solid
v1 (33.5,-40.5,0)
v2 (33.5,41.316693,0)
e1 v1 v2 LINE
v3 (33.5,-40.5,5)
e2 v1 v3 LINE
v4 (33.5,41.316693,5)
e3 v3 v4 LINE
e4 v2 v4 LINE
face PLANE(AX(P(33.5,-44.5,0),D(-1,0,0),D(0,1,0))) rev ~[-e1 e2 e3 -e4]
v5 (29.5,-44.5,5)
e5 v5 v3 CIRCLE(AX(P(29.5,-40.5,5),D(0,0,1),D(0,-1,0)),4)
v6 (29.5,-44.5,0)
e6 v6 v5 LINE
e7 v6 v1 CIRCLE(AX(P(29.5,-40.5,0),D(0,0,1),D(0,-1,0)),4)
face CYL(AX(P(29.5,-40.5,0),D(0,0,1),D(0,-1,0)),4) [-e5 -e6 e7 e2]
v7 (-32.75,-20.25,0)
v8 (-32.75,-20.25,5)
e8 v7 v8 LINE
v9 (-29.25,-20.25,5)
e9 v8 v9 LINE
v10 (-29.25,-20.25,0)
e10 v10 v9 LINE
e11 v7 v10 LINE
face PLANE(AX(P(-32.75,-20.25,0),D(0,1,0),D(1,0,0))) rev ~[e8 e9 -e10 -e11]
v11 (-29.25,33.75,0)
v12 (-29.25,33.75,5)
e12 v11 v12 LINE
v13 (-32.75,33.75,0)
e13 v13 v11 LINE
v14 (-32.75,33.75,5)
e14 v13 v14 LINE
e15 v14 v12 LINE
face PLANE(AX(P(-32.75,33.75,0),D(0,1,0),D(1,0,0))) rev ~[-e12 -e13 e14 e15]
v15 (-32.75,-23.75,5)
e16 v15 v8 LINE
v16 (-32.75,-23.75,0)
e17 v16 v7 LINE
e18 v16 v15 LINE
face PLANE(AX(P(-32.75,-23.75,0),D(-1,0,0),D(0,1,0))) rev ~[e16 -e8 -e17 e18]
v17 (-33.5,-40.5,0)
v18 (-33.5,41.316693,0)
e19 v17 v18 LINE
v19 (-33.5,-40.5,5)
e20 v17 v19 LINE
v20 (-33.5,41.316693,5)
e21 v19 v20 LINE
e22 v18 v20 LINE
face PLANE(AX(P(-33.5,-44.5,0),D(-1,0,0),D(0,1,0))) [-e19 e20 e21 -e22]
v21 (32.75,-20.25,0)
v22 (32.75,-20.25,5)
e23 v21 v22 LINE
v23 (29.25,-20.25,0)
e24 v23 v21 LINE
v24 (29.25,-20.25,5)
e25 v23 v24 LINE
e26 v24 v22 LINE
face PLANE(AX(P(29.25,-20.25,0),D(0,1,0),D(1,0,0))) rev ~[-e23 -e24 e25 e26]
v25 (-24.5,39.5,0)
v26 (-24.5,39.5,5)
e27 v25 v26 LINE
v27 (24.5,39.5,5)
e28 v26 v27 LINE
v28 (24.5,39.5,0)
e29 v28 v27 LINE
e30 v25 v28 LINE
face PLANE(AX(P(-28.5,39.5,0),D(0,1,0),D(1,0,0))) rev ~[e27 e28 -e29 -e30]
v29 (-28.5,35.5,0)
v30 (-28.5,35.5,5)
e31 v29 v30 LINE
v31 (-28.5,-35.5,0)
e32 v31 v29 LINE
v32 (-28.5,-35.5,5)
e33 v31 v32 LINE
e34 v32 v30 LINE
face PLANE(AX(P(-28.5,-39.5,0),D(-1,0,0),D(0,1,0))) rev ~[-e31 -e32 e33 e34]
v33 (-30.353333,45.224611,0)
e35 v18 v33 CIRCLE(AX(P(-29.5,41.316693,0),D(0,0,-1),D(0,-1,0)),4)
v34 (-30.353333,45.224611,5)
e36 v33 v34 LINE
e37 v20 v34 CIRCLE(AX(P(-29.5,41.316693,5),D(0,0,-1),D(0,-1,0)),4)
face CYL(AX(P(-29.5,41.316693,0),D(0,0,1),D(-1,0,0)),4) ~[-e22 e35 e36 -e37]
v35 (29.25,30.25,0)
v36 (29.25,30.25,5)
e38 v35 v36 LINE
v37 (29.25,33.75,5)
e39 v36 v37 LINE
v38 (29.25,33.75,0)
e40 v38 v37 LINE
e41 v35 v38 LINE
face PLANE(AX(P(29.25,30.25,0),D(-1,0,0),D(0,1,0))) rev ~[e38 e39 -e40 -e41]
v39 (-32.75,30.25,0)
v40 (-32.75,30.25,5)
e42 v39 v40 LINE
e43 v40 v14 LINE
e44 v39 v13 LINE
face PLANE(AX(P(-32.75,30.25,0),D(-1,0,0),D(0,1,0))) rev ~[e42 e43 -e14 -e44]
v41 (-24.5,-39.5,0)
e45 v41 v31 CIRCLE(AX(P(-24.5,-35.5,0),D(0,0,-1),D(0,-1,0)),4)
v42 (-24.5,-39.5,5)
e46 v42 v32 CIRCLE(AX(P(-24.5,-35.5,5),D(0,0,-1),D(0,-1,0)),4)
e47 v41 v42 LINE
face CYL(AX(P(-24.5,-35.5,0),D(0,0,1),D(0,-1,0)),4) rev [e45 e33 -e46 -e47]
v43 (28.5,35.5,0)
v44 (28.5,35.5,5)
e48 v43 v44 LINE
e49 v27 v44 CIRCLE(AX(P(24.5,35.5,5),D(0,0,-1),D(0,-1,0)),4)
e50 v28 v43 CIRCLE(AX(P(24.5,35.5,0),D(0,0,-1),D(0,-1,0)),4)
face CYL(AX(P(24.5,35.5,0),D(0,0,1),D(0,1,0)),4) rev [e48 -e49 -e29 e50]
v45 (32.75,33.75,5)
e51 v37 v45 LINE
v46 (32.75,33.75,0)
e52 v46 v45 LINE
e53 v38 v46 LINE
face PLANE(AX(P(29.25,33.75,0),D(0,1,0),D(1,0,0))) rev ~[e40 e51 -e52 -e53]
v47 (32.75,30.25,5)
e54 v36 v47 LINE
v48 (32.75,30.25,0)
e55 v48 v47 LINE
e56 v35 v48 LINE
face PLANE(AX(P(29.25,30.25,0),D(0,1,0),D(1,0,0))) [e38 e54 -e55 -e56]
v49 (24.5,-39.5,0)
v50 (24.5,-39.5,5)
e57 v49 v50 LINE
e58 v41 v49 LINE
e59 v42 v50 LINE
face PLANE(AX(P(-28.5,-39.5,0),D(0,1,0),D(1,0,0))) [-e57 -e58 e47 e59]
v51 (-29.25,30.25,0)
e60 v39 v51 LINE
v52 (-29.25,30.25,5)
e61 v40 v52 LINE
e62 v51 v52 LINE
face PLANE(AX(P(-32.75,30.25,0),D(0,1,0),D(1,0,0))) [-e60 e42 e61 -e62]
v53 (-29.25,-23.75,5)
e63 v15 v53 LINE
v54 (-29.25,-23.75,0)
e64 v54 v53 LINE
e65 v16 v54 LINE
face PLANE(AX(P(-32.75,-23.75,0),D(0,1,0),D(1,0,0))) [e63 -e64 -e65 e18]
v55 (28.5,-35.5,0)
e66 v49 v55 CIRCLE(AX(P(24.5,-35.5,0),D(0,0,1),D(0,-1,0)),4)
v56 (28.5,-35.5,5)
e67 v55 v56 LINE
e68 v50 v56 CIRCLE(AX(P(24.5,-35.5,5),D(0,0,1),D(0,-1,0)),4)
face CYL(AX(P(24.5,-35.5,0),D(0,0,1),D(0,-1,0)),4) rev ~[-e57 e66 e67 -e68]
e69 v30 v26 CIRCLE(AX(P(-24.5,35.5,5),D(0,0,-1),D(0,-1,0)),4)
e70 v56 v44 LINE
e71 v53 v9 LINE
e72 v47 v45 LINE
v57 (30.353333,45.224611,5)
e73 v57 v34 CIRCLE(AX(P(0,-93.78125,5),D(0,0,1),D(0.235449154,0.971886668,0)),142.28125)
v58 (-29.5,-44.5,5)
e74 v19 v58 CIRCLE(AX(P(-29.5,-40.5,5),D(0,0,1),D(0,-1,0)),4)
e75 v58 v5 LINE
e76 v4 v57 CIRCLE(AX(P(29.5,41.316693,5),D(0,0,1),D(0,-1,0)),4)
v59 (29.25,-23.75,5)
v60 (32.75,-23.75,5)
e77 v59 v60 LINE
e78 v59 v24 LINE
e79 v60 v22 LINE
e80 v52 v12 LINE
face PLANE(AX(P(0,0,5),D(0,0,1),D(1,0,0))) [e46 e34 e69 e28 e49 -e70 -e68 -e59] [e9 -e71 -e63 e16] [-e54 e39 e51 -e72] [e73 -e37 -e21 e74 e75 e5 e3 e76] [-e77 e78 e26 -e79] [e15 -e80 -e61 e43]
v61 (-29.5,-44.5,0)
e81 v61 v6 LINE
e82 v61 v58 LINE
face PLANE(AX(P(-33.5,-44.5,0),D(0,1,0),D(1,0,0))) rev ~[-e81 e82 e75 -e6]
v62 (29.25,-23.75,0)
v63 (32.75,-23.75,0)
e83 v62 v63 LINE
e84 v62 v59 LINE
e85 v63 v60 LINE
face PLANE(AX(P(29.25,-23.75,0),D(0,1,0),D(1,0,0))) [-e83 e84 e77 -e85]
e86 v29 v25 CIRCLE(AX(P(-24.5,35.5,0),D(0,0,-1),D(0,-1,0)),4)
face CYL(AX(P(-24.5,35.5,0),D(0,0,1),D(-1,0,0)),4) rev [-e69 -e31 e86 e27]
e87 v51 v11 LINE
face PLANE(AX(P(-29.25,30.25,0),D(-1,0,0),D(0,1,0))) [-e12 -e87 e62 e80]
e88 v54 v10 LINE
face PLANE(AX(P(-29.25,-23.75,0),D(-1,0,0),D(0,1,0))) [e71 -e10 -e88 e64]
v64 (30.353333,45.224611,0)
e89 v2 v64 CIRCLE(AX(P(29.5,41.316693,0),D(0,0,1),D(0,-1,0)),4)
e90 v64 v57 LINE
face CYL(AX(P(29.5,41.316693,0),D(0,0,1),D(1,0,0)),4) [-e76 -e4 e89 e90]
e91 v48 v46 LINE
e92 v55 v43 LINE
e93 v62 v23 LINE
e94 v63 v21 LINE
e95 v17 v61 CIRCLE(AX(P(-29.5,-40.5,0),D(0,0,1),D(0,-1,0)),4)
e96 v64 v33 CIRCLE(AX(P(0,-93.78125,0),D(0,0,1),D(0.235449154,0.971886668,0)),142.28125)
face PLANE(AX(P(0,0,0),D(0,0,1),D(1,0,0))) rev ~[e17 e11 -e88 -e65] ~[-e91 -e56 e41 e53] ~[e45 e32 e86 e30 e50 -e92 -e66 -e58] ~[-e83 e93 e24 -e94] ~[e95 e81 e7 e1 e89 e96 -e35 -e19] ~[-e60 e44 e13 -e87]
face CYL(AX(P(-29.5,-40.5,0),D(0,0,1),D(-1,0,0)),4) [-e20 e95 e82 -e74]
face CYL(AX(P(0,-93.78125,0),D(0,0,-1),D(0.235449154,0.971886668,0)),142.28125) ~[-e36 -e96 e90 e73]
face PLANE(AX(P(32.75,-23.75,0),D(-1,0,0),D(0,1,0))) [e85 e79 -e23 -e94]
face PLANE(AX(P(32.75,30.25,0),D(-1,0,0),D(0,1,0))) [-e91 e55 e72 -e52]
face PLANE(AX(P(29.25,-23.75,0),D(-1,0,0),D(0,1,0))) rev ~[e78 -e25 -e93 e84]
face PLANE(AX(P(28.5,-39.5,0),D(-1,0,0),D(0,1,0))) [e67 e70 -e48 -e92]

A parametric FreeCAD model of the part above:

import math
import FreeCAD as App
import Part
import Sketcher

V = App.Vector


def edges_at(feature, points):
    """Names of the edges that pass closest to the given points."""
    edges = feature.Shape.Edges
    near = lambda p: min(range(len(edges)), key=lambda i: edges[i].distToShape(Part.Vertex(*p))[0])
    return sorted({f"Edge{near(p) + 1}" for p in points})


def add_polygon(sketch, points):
    """Adds a closed chain of lines whose ends are joined by coincident constraints."""
    first, n = sketch.GeometryCount, len(points)
    for a, b in zip(points, points[1:] + points[:1]):
        sketch.addGeometry(Part.LineSegment(App.Vector(*a, 0), App.Vector(*b, 0)), False)
    for i in range(n):
        sketch.addConstraint(Sketcher.Constraint("Coincident", first + i, 2, first + (i + 1) % n, 1))

doc = App.newDocument("Part")
body = doc.addObject("PartDesign::Body", "Body")

# Sketch on XY plane
sketch1 = body.newObject("Sketcher::SketchObject", "Sketch")
sketch1.AttachmentSupport = (doc.getObject("XY_Plane"), [""])
sketch1.MapMode = "FlatFace"
sketch1.addGeometry(Part.LineSegment(V(-33.5, 44.5, 0), V(-33.5, -44.5, 0)), False)  # 0
sketch1.addGeometry(Part.LineSegment(V(-33.5, -44.5, 0), V(33.5, -44.5, 0)), False)  # 1
sketch1.addGeometry(Part.LineSegment(V(33.5, -44.5, 0), V(33.5, 44.5, 0)), False)  # 2
sketch1.addGeometry(Part.ArcOfCircle(Part.Circle(V(0, -93.8, 0), V(0, 0, 1), 142.3), math.radians(76), math.radians(104)), False)  # 3
add_polygon(sketch1, [(-29.2, -23.8), (-32.8, -23.8), (-32.8, -20.2), (-29.2, -20.2)])  # lines 4-7
add_polygon(sketch1, [(32.8, -23.8), (29.2, -23.8), (29.2, -20.2), (32.8, -20.2)])  # lines 8-11
add_polygon(sketch1, [(-29.2, 30.2), (-32.8, 30.2), (-32.8, 33.8), (-29.2, 33.8)])  # lines 12-15
add_polygon(sketch1, [(28.5, -39.5), (-28.5, -39.5), (-28.5, 39.5), (28.5, 39.5)])  # lines 16-19
add_polygon(sketch1, [(32.8, 30.2), (29.2, 30.2), (29.2, 33.8), (32.8, 33.8)])  # lines 20-23
sketch1.addConstraint(Sketcher.Constraint("Coincident", 0, 2, 1, 1))
sketch1.addConstraint(Sketcher.Constraint("Coincident", 1, 2, 2, 1))
sketch1.addConstraint(Sketcher.Constraint("Coincident", 2, 2, 3, 1))
sketch1.addConstraint(Sketcher.Constraint("Coincident", 3, 2, 0, 1))
sketch1.addConstraint(Sketcher.Constraint("Vertical", 0))
sketch1.addConstraint(Sketcher.Constraint("Horizontal", 1))
sketch1.addConstraint(Sketcher.Constraint("Vertical", 2))
sketch1.addConstraint(Sketcher.Constraint("Horizontal", 4))
sketch1.addConstraint(Sketcher.Constraint("Vertical", 5))
sketch1.addConstraint(Sketcher.Constraint("Horizontal", 6))
sketch1.addConstraint(Sketcher.Constraint("Vertical", 7))
sketch1.addConstraint(Sketcher.Constraint("Horizontal", 8))
sketch1.addConstraint(Sketcher.Constraint("Vertical", 9))
sketch1.addConstraint(Sketcher.Constraint("Horizontal", 10))
sketch1.addConstraint(Sketcher.Constraint("Vertical", 11))
sketch1.addConstraint(Sketcher.Constraint("Horizontal", 12))
sketch1.addConstraint(Sketcher.Constraint("Vertical", 13))
sketch1.addConstraint(Sketcher.Constraint("Horizontal", 14))
sketch1.addConstraint(Sketcher.Constraint("Vertical", 15))
sketch1.addConstraint(Sketcher.Constraint("Horizontal", 16))
sketch1.addConstraint(Sketcher.Constraint("Vertical", 17))
sketch1.addConstraint(Sketcher.Constraint("Horizontal", 18))
sketch1.addConstraint(Sketcher.Constraint("Vertical", 19))
sketch1.addConstraint(Sketcher.Constraint("Horizontal", 20))
sketch1.addConstraint(Sketcher.Constraint("Vertical", 21))
sketch1.addConstraint(Sketcher.Constraint("Horizontal", 22))
sketch1.addConstraint(Sketcher.Constraint("Vertical", 23))
sketch1.addConstraint(Sketcher.Constraint("Symmetric", 0, 2, 2, 2, -1, 1))
sketch1.addConstraint(Sketcher.Constraint("Symmetric", 16, 2, 18, 2, -1, 1))
sketch1.addConstraint(Sketcher.Constraint("Symmetric", 7, 2, 8, 2, -2))
sketch1.addConstraint(Sketcher.Constraint("Symmetric", 5, 2, 10, 2, -2))
sketch1.addConstraint(Sketcher.Constraint("Symmetric", 15, 2, 20, 2, -2))
sketch1.addConstraint(Sketcher.Constraint("Symmetric", 13, 2, 22, 2, -2))
sketch1.addConstraint(Sketcher.Constraint("PointOnObject", 3, 3, -2))
sketch1.addConstraint(Sketcher.Constraint("Vertical", 5, 2, 12, 2))
sketch1.addConstraint(Sketcher.Constraint("Vertical", 7, 2, 14, 2))
sketch1.addConstraint(Sketcher.Constraint("Equal", 22, 5))
sketch1.addConstraint(Sketcher.Constraint("Equal", 11, 13))
sketch1.addConstraint(Sketcher.Constraint("DistanceX", 1, 1, 1, 2, 67.0))
sketch1.addConstraint(Sketcher.Constraint("DistanceX", 16, 2, 16, 1, 57.0))
sketch1.addConstraint(Sketcher.Constraint("DistanceY", 0, 2, 0, 1, 89.0))
sketch1.addConstraint(Sketcher.Constraint("DistanceY", 17, 1, 17, 2, 79.0))
sketch1.addConstraint(Sketcher.Constraint("DistanceX", 4, 2, 4, 1, 3.5))
sketch1.addConstraint(Sketcher.Constraint("DistanceX", 4, 2, 8, 2, 62.0))
sketch1.addConstraint(Sketcher.Constraint("DistanceY", 4, 2, 12, 2, 54.0))
sketch1.addConstraint(Sketcher.Constraint("DistanceY", 4, 2, -1, 1, 23.75))
sketch1.addConstraint(Sketcher.Constraint("Radius", 3, 142.28125))
pad1 = body.newObject("PartDesign::Pad", "Pad")
pad1.Profile = sketch1
pad1.Length = 5
doc.recompute()

fillet = body.newObject("PartDesign::Fillet", "Fillet")
fillet.Base = (pad1, edges_at(pad1, [
    (-33.5, -44.5, 2.5),
    (33.5, -44.5, 2.5),
    (-33.5, 44.5, 2.5),
    (33.5, 44.5, 2.5),
    (-28.5, 39.5, 2.5),
    (28.5, 39.5, 2.5),
    (28.5, -39.5, 2.5),
    (-28.5, -39.5, 2.5),
]))
fillet.Radius = 4

doc.recompute()
